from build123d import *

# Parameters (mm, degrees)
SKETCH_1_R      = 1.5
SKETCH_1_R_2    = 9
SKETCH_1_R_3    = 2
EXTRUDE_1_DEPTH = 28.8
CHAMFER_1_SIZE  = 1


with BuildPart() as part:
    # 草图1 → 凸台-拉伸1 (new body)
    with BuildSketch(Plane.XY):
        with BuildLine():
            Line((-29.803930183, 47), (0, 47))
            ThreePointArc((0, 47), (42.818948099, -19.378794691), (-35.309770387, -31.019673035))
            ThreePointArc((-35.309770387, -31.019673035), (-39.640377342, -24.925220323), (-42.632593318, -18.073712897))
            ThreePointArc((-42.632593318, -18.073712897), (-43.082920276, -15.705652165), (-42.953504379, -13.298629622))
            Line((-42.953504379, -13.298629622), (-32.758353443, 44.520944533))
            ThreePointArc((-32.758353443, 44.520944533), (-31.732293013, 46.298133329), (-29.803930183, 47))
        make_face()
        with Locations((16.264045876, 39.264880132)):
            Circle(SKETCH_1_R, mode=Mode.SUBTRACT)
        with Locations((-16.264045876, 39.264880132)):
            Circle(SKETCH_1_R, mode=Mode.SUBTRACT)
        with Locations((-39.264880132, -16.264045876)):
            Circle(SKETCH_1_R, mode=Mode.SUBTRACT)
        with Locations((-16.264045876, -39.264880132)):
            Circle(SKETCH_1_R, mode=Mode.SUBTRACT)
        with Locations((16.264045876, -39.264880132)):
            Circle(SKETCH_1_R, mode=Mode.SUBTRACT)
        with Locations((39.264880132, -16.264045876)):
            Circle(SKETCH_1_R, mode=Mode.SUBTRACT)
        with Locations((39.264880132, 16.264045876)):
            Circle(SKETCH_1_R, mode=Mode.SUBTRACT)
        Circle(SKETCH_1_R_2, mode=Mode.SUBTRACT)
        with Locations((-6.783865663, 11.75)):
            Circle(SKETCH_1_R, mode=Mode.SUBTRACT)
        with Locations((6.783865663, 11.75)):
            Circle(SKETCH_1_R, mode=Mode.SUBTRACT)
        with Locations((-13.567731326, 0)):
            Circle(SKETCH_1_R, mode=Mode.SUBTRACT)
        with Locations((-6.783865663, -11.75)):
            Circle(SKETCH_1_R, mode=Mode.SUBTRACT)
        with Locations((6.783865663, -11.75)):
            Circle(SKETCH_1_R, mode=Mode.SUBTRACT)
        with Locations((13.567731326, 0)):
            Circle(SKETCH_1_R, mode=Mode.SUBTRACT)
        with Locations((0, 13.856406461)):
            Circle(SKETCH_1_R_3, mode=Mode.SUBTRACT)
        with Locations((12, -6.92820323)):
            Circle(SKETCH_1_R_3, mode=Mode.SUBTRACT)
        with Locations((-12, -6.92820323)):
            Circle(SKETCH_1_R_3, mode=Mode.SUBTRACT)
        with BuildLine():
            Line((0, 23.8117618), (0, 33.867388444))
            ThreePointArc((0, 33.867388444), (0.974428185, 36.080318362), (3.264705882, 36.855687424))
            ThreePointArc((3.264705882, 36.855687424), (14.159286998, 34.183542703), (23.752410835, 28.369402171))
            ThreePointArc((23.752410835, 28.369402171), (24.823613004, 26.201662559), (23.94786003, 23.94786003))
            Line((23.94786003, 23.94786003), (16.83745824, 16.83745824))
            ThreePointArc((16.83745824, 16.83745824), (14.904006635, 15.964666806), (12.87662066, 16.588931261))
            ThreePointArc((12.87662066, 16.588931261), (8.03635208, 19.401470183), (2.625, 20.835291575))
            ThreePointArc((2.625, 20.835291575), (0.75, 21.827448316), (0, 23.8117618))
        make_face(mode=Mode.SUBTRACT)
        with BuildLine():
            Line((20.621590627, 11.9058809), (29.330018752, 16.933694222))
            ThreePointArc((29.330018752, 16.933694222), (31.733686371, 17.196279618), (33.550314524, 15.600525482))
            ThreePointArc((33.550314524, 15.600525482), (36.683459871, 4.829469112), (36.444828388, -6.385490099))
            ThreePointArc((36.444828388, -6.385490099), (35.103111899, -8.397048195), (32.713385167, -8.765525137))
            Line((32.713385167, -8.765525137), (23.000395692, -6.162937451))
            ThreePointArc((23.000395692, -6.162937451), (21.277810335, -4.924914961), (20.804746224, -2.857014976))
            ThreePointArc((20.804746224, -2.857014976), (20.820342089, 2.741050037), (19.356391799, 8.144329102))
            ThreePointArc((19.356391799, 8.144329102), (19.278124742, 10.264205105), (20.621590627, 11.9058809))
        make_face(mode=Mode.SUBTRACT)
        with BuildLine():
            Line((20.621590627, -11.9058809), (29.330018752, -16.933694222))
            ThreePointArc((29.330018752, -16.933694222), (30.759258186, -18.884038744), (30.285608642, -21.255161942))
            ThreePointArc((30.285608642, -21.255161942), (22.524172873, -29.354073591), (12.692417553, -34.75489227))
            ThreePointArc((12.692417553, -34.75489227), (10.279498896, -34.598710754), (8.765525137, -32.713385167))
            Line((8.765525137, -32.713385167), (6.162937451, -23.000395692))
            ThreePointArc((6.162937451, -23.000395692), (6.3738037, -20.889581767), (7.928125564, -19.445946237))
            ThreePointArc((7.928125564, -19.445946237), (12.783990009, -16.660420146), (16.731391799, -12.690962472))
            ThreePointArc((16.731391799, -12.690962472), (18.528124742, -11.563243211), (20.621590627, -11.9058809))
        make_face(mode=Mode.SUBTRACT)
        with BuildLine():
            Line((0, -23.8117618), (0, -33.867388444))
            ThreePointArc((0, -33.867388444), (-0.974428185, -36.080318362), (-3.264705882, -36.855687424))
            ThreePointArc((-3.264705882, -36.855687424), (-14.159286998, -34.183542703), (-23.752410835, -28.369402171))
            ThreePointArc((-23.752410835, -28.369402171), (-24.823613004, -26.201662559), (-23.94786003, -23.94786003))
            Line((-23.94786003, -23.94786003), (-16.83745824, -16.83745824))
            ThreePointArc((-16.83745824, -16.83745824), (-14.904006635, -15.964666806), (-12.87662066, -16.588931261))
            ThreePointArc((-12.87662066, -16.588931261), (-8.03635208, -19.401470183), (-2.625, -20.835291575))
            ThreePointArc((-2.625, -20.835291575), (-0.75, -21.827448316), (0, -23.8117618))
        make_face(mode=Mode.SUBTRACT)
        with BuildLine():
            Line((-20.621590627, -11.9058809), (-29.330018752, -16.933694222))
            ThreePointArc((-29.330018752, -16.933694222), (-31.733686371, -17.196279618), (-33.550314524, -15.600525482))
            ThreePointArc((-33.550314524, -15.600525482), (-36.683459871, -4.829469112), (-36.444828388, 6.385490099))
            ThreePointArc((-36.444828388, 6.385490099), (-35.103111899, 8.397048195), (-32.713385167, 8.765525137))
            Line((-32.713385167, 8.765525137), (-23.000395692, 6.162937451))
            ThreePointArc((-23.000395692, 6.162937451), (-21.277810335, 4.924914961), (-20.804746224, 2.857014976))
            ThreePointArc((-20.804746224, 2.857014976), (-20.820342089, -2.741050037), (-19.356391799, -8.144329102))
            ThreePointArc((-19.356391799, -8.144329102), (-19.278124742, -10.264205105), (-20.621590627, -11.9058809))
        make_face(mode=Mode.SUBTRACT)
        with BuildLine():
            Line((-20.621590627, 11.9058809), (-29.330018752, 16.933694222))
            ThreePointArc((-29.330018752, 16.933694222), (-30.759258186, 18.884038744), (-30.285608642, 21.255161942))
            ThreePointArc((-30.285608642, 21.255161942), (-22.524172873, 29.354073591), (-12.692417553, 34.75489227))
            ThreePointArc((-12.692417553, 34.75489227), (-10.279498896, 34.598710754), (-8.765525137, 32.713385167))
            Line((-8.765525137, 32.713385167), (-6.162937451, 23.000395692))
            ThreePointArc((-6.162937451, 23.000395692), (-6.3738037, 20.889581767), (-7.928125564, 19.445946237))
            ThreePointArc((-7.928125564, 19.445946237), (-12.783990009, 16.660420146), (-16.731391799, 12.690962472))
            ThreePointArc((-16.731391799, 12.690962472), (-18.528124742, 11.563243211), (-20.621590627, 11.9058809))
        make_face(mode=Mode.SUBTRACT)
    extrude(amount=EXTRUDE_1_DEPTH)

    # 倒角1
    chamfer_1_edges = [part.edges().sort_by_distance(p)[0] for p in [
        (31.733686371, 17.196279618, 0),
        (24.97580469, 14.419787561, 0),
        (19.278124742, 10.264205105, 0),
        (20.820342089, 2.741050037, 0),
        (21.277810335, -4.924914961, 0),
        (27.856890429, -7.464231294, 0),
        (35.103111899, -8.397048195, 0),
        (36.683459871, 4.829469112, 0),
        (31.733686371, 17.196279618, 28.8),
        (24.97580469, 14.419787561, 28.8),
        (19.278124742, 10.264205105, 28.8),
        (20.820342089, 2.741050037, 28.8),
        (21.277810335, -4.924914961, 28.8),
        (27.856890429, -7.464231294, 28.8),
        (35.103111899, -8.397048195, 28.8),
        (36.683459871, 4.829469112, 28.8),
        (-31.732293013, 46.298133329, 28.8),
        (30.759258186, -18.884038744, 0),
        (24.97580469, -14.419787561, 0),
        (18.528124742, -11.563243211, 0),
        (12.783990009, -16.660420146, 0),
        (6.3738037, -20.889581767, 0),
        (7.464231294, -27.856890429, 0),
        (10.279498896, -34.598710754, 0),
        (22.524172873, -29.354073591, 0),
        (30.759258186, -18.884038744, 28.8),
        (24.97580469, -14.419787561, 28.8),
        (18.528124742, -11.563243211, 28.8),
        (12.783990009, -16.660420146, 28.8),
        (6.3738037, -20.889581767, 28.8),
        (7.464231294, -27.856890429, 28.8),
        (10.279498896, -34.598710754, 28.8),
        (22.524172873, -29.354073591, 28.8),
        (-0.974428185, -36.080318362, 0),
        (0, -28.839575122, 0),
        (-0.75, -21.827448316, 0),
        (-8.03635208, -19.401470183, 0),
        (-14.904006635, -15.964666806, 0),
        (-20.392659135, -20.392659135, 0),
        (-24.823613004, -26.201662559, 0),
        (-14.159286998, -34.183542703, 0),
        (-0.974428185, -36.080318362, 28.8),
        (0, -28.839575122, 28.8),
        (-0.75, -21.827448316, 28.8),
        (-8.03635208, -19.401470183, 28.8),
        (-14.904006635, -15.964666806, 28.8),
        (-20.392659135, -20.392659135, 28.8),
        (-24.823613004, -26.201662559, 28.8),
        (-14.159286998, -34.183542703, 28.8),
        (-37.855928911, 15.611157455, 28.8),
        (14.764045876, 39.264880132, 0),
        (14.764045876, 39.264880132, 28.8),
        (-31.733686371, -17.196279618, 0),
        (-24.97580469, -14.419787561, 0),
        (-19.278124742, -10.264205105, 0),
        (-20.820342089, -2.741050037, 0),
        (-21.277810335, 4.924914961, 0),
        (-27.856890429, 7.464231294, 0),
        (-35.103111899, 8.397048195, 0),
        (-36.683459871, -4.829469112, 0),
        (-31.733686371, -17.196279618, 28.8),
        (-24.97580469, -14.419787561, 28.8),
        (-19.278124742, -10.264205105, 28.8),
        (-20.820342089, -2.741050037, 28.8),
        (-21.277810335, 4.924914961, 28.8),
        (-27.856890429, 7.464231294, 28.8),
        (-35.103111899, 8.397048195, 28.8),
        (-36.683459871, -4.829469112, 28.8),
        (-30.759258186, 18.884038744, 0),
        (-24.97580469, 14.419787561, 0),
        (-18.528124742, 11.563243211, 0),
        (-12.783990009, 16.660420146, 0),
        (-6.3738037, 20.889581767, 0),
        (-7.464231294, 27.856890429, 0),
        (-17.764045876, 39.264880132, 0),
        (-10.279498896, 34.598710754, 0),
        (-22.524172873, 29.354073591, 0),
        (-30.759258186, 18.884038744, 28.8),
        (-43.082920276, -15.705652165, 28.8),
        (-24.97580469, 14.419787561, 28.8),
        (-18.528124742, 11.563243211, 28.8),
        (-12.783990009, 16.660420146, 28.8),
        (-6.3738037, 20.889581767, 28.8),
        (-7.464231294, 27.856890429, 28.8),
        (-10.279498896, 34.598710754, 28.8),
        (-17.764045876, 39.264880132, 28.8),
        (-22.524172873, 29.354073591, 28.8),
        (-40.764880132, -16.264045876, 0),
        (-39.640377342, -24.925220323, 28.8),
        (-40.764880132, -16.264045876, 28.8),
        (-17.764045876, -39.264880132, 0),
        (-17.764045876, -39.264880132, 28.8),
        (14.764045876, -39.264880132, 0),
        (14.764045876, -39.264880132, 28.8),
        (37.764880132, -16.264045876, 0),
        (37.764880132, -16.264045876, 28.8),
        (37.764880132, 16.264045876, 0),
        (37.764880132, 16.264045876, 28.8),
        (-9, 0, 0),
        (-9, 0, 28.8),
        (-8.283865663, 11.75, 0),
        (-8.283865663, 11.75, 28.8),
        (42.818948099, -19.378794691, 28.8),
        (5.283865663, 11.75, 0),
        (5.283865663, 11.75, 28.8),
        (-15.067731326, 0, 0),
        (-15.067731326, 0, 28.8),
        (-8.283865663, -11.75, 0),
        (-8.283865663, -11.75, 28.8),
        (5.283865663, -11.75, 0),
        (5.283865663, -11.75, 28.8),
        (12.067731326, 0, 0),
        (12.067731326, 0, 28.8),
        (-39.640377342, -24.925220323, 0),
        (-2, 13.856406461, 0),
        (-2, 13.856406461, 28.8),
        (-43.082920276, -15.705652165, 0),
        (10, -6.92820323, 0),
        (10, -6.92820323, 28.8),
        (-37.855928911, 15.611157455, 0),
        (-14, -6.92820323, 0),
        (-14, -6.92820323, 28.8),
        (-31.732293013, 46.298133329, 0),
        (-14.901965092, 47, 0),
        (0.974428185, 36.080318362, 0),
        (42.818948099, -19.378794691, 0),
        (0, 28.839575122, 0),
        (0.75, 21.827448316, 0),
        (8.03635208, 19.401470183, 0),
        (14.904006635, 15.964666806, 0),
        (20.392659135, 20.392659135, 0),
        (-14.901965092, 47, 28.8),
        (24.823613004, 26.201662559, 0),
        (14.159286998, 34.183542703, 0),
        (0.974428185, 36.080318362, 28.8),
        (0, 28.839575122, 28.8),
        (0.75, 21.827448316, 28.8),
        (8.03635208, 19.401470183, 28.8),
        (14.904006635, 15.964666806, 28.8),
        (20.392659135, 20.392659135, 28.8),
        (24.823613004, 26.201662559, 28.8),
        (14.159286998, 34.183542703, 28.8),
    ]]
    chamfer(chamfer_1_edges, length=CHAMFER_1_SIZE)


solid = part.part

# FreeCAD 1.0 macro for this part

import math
import FreeCAD as App
import Part
import Sketcher
from FreeCAD import Vector
Q = App.Units.Quantity


def edges_at(feature, points):
    """Names of the edges that pass closest to the given points."""
    edges = feature.Shape.Edges
    near = lambda p: min(range(len(edges)), key=lambda i: edges[i].distToShape(Part.Vertex(*p))[0])
    return sorted({f"Edge{near(p) + 1}" for p in points})

doc = App.newDocument("Part")
body = doc.addObject("PartDesign::Body", "Body")

# Sketch on XY plane
sketch1 = doc.addObject("Sketcher::SketchObject", "Sketch")
body.addObject(sketch1)
sketch1.AttachmentSupport = (doc.XY_Plane, [""])
sketch1.MapMode = "FlatFace"
sketch1.addGeometry(Part.LineSegment(Vector(0, 47, 0), Vector(-29.80393, 47, 0)), False)
sketch1.addGeometry(Part.ArcOfCircle(Part.Circle(Vector(-29.80393, 44, 0), Vector(0, 0, 1), 3), math.radians(90), math.radians(170)), False)
sketch1.addGeometry(Part.LineSegment(Vector(-32.758353, 44.520945, 0), Vector(-42.953504, -13.29863, 0)), False)
sketch1.addGeometry(Part.ArcOfCircle(Part.Circle(Vector(-33.105427, -15.035111, 0), Vector(0, 0, 1), 10), math.radians(170), math.radians(197.689601)), False)
sketch1.addGeometry(Part.ArcOfCircle(Part.Circle(Vector(-7.999927, -7.027945, 0), Vector(0, 0, 1), 36.351487), math.radians(-162.310399), math.radians(-138.700658)), False)
sketch1.addGeometry(Part.ArcOfCircle(Part.Circle(Vector(0, 0, 0), Vector(0, 0, 1), 47), math.radians(-138.700658), math.radians(90)), False)
sketch1.addGeometry(Part.Circle(Vector(16.264046, -39.26488, 0), Vector(0, 0, 1), 1.5), False)
sketch1.addGeometry(Part.LineSegment(Vector(20.621591, -11.905881, 0), Vector(29.330019, -16.933694, 0)), False)
sketch1.addGeometry(Part.ArcOfCircle(Part.Circle(Vector(27.830019, -19.53177, 0), Vector(0, 0, 1), 3), math.radians(-35.062093), math.radians(60)), False)
sketch1.addGeometry(Part.ArcOfCircle(Part.Circle(Vector(0, 0, 0), Vector(0, 0, 1), 37), math.radians(-69.937907), math.radians(-35.062093)), False)
sketch1.addGeometry(Part.ArcOfCircle(Part.Circle(Vector(11.663303, -31.936928, 0), Vector(0, 0, 1), 3), math.radians(-165), math.radians(-69.937907)), False)
sketch1.addGeometry(Part.LineSegment(Vector(8.765525, -32.713385, 0), Vector(6.162937, -23.000396, 0)), False)
sketch1.addGeometry(Part.ArcOfCircle(Part.Circle(Vector(9.060715, -22.223939, 0), Vector(0, 0, 1), 3), math.radians(112.180756), math.radians(195)), False)
sketch1.addGeometry(Part.ArcOfCircle(Part.Circle(Vector(0, 0, 0), Vector(0, 0, 1), 21), math.radians(-67.819244), math.radians(-37.180756)), False)
sketch1.addGeometry(Part.ArcOfCircle(Part.Circle(Vector(19.121591, -14.503957, 0), Vector(0, 0, 1), 3), math.radians(60), math.radians(142.819244)), False)
sketch1.addGeometry(Part.Circle(Vector(39.26488, -16.264046, 0), Vector(0, 0, 1), 1.5), False)
sketch1.addGeometry(Part.Circle(Vector(6.783866, -11.75, 0), Vector(0, 0, 1), 1.5), False)
sketch1.addGeometry(Part.Circle(Vector(12, -6.928203, 0), Vector(0, 0, 1), 2), False)
sketch1.addGeometry(Part.Circle(Vector(-16.264046, -39.26488, 0), Vector(0, 0, 1), 1.5), False)
sketch1.addGeometry(Part.LineSegment(Vector(0, -23.811762, 0), Vector(0, -33.867388, 0)), False)
sketch1.addGeometry(Part.ArcOfCircle(Part.Circle(Vector(-3, -33.867388, 0), Vector(0, 0, 1), 3), math.radians(-95.062093), math.radians(0)), False)
sketch1.addGeometry(Part.ArcOfCircle(Part.Circle(Vector(0, 0, 0), Vector(0, 0, 1), 37), math.radians(-129.937907), math.radians(-95.062093)), False)
sketch1.addGeometry(Part.ArcOfCircle(Part.Circle(Vector(-21.82654, -26.06918, 0), Vector(0, 0, 1), 3), math.radians(135), math.radians(230.062093)), False)
sketch1.addGeometry(Part.LineSegment(Vector(-23.94786, -23.94786, 0), Vector(-16.837458, -16.837458, 0)), False)
sketch1.addGeometry(Part.ArcOfCircle(Part.Circle(Vector(-14.716138, -18.958779, 0), Vector(0, 0, 1), 3), math.radians(52.180756), math.radians(135)), False)
sketch1.addGeometry(Part.ArcOfCircle(Part.Circle(Vector(0, 0, 0), Vector(0, 0, 1), 21), math.radians(-127.819244), math.radians(-97.180756)), False)
sketch1.addGeometry(Part.ArcOfCircle(Part.Circle(Vector(-3, -23.811762, 0), Vector(0, 0, 1), 3), math.radians(0), math.radians(82.819244)), False)
sketch1.addGeometry(Part.Circle(Vector(-6.783866, -11.75, 0), Vector(0, 0, 1), 1.5), False)
sketch1.addGeometry(Part.Circle(Vector(-12, -6.928203, 0), Vector(0, 0, 1), 2), False)
sketch1.addGeometry(Part.Circle(Vector(-39.26488, -16.264046, 0), Vector(0, 0, 1), 1.5), False)
sketch1.addGeometry(Part.LineSegment(Vector(-20.621591, -11.905881, 0), Vector(-29.330019, -16.933694, 0)), False)
sketch1.addGeometry(Part.ArcOfCircle(Part.Circle(Vector(-30.830019, -14.335618, 0), Vector(0, 0, 1), 3), math.radians(-155.062093), math.radians(-60)), False)
sketch1.addGeometry(Part.ArcOfCircle(Part.Circle(Vector(0, 0, 0), Vector(0, 0, 1), 37), math.radians(170.062093), math.radians(204.937907)), False)
sketch1.addGeometry(Part.ArcOfCircle(Part.Circle(Vector(-33.489842, 5.867748, 0), Vector(0, 0, 1), 3), math.radians(75), math.radians(170.062093)), False)
sketch1.addGeometry(Part.LineSegment(Vector(-32.713385, 8.765525, 0), Vector(-23.000396, 6.162937, 0)), False)
sketch1.addGeometry(Part.ArcOfCircle(Part.Circle(Vector(-23.776853, 3.26516, 0), Vector(0, 0, 1), 3), math.radians(-7.819244), math.radians(75)), False)
sketch1.addGeometry(Part.ArcOfCircle(Part.Circle(Vector(0, 0, 0), Vector(0, 0, 1), 21), math.radians(172.180756), math.radians(202.819244)), False)
sketch1.addGeometry(Part.ArcOfCircle(Part.Circle(Vector(-22.121591, -9.307805, 0), Vector(0, 0, 1), 3), math.radians(-60), math.radians(22.819244)), False)
sketch1.addGeometry(Part.LineSegment(Vector(20.621591, 11.905881, 0), Vector(29.330019, 16.933694, 0)), False)
sketch1.addGeometry(Part.ArcOfCircle(Part.Circle(Vector(30.830019, 14.335618, 0), Vector(0, 0, 1), 3), math.radians(24.937907), math.radians(120)), False)
sketch1.addGeometry(Part.ArcOfCircle(Part.Circle(Vector(0, 0, 0), Vector(0, 0, 1), 37), math.radians(-9.937907), math.radians(24.937907)), False)
sketch1.addGeometry(Part.ArcOfCircle(Part.Circle(Vector(33.489842, -5.867748, 0), Vector(0, 0, 1), 3), math.radians(-105), math.radians(-9.937907)), False)
sketch1.addGeometry(Part.LineSegment(Vector(32.713385, -8.765525, 0), Vector(23.000396, -6.162937, 0)), False)
sketch1.addGeometry(Part.ArcOfCircle(Part.Circle(Vector(23.776853, -3.26516, 0), Vector(0, 0, 1), 3), math.radians(172.180756), math.radians(255)), False)
sketch1.addGeometry(Part.ArcOfCircle(Part.Circle(Vector(0, 0, 0), Vector(0, 0, 1), 21), math.radians(-7.819244), math.radians(22.819244)), False)
sketch1.addGeometry(Part.ArcOfCircle(Part.Circle(Vector(22.121591, 9.307805, 0), Vector(0, 0, 1), 3), math.radians(120), math.radians(202.819244)), False)
sketch1.addGeometry(Part.Circle(Vector(39.26488, 16.264046, 0), Vector(0, 0, 1), 1.5), False)
sketch1.addGeometry(Part.Circle(Vector(13.567731, 0, 0), Vector(0, 0, 1), 1.5), False)
sketch1.addGeometry(Part.Circle(Vector(6.783866, 11.75, 0), Vector(0, 0, 1), 1.5), False)
sketch1.addGeometry(Part.LineSegment(Vector(0, 23.811762, 0), Vector(0, 33.867388, 0)), False)
sketch1.addGeometry(Part.ArcOfCircle(Part.Circle(Vector(3, 33.867388, 0), Vector(0, 0, 1), 3), math.radians(84.937907), math.radians(180)), False)
sketch1.addGeometry(Part.ArcOfCircle(Part.Circle(Vector(0, 0, 0), Vector(0, 0, 1), 37), math.radians(50.062093), math.radians(84.937907)), False)
sketch1.addGeometry(Part.ArcOfCircle(Part.Circle(Vector(21.82654, 26.06918, 0), Vector(0, 0, 1), 3), math.radians(-45), math.radians(50.062093)), False)
sketch1.addGeometry(Part.LineSegment(Vector(23.94786, 23.94786, 0), Vector(16.837458, 16.837458, 0)), False)
sketch1.addGeometry(Part.ArcOfCircle(Part.Circle(Vector(14.716138, 18.958779, 0), Vector(0, 0, 1), 3), math.radians(-127.819244), math.radians(-45)), False)
sketch1.addGeometry(Part.ArcOfCircle(Part.Circle(Vector(0, 0, 0), Vector(0, 0, 1), 21), math.radians(52.180756), math.radians(82.819244)), False)
sketch1.addGeometry(Part.ArcOfCircle(Part.Circle(Vector(3, 23.811762, 0), Vector(0, 0, 1), 3), math.radians(180), math.radians(262.819244)), False)
sketch1.addGeometry(Part.Circle(Vector(16.264046, 39.26488, 0), Vector(0, 0, 1), 1.5), False)
sketch1.addGeometry(Part.Circle(Vector(0, 0, 0), Vector(0, 0, 1), 9), False)
sketch1.addGeometry(Part.Circle(Vector(-13.567731, 0, 0), Vector(0, 0, 1), 1.5), False)
sketch1.addGeometry(Part.Circle(Vector(0, 13.856406, 0), Vector(0, 0, 1), 2), False)
sketch1.addGeometry(Part.Circle(Vector(-6.783866, 11.75, 0), Vector(0, 0, 1), 1.5), False)
sketch1.addGeometry(Part.LineSegment(Vector(-20.621591, 11.905881, 0), Vector(-29.330019, 16.933694, 0)), False)
sketch1.addGeometry(Part.ArcOfCircle(Part.Circle(Vector(-27.830019, 19.53177, 0), Vector(0, 0, 1), 3), math.radians(144.937907), math.radians(240)), False)
sketch1.addGeometry(Part.ArcOfCircle(Part.Circle(Vector(0, 0, 0), Vector(0, 0, 1), 37), math.radians(110.062093), math.radians(144.937907)), False)
sketch1.addGeometry(Part.ArcOfCircle(Part.Circle(Vector(-11.663303, 31.936928, 0), Vector(0, 0, 1), 3), math.radians(15), math.radians(110.062093)), False)
sketch1.addGeometry(Part.LineSegment(Vector(-8.765525, 32.713385, 0), Vector(-6.162937, 23.000396, 0)), False)
sketch1.addGeometry(Part.ArcOfCircle(Part.Circle(Vector(-9.060715, 22.223939, 0), Vector(0, 0, 1), 3), math.radians(-67.819244), math.radians(15)), False)
sketch1.addGeometry(Part.ArcOfCircle(Part.Circle(Vector(0, 0, 0), Vector(0, 0, 1), 21), math.radians(112.180756), math.radians(142.819244)), False)
sketch1.addGeometry(Part.ArcOfCircle(Part.Circle(Vector(-19.121591, 14.503957, 0), Vector(0, 0, 1), 3), math.radians(-120), math.radians(-37.180756)), False)
sketch1.addGeometry(Part.Circle(Vector(-16.264046, 39.26488, 0), Vector(0, 0, 1), 1.5), False)
sketch1.addConstraint(Sketcher.Constraint("Tangent", 0, 2, 1, 1))
sketch1.addConstraint(Sketcher.Constraint("Tangent", 1, 2, 2, 1))
sketch1.addConstraint(Sketcher.Constraint("Tangent", 2, 2, 3, 1))
sketch1.addConstraint(Sketcher.Constraint("Tangent", 3, 2, 4, 1))
sketch1.addConstraint(Sketcher.Constraint("Tangent", 4, 2, 5, 1))
sketch1.addConstraint(Sketcher.Constraint("Tangent", 5, 2, 0, 1))
sketch1.addConstraint(Sketcher.Constraint("Tangent", 7, 2, 8, 2))
sketch1.addConstraint(Sketcher.Constraint("Tangent", 8, 1, 9, 2))
sketch1.addConstraint(Sketcher.Constraint("Tangent", 9, 1, 10, 2))
sketch1.addConstraint(Sketcher.Constraint("Tangent", 10, 1, 11, 1))
sketch1.addConstraint(Sketcher.Constraint("Tangent", 11, 2, 12, 2))
sketch1.addConstraint(Sketcher.Constraint("Tangent", 12, 1, 13, 1))
sketch1.addConstraint(Sketcher.Constraint("Tangent", 13, 2, 14, 2))
sketch1.addConstraint(Sketcher.Constraint("Tangent", 14, 1, 7, 1))
sketch1.addConstraint(Sketcher.Constraint("Tangent", 19, 2, 20, 2))
sketch1.addConstraint(Sketcher.Constraint("Tangent", 20, 1, 21, 2))
sketch1.addConstraint(Sketcher.Constraint("Tangent", 21, 1, 22, 2))
sketch1.addConstraint(Sketcher.Constraint("Tangent", 22, 1, 23, 1))
sketch1.addConstraint(Sketcher.Constraint("Tangent", 23, 2, 24, 2))
sketch1.addConstraint(Sketcher.Constraint("Tangent", 24, 1, 25, 1))
sketch1.addConstraint(Sketcher.Constraint("Tangent", 25, 2, 26, 2))
sketch1.addConstraint(Sketcher.Constraint("Tangent", 26, 1, 19, 1))
sketch1.addConstraint(Sketcher.Constraint("Tangent", 30, 2, 31, 2))
sketch1.addConstraint(Sketcher.Constraint("Tangent", 31, 1, 32, 2))
sketch1.addConstraint(Sketcher.Constraint("Tangent", 32, 1, 33, 2))
sketch1.addConstraint(Sketcher.Constraint("Tangent", 33, 1, 34, 1))
sketch1.addConstraint(Sketcher.Constraint("Tangent", 34, 2, 35, 2))
sketch1.addConstraint(Sketcher.Constraint("Tangent", 35, 1, 36, 1))
sketch1.addConstraint(Sketcher.Constraint("Tangent", 36, 2, 37, 2))
sketch1.addConstraint(Sketcher.Constraint("Tangent", 37, 1, 30, 1))
sketch1.addConstraint(Sketcher.Constraint("Tangent", 38, 2, 39, 2))
sketch1.addConstraint(Sketcher.Constraint("Tangent", 39, 1, 40, 2))
sketch1.addConstraint(Sketcher.Constraint("Tangent", 40, 1, 41, 2))
sketch1.addConstraint(Sketcher.Constraint("Tangent", 41, 1, 42, 1))
sketch1.addConstraint(Sketcher.Constraint("Tangent", 42, 2, 43, 2))
sketch1.addConstraint(Sketcher.Constraint("Tangent", 43, 1, 44, 1))
sketch1.addConstraint(Sketcher.Constraint("Tangent", 44, 2, 45, 2))
sketch1.addConstraint(Sketcher.Constraint("Tangent", 45, 1, 38, 1))
sketch1.addConstraint(Sketcher.Constraint("Tangent", 49, 2, 50, 2))
sketch1.addConstraint(Sketcher.Constraint("Tangent", 50, 1, 51, 2))
sketch1.addConstraint(Sketcher.Constraint("Tangent", 51, 1, 52, 2))
sketch1.addConstraint(Sketcher.Constraint("Tangent", 52, 1, 53, 1))
sketch1.addConstraint(Sketcher.Constraint("Tangent", 53, 2, 54, 2))
sketch1.addConstraint(Sketcher.Constraint("Tangent", 54, 1, 55, 1))
sketch1.addConstraint(Sketcher.Constraint("Tangent", 55, 2, 56, 2))
sketch1.addConstraint(Sketcher.Constraint("Tangent", 56, 1, 49, 1))
sketch1.addConstraint(Sketcher.Constraint("Tangent", 62, 2, 63, 2))
sketch1.addConstraint(Sketcher.Constraint("Tangent", 63, 1, 64, 2))
sketch1.addConstraint(Sketcher.Constraint("Tangent", 64, 1, 65, 2))
sketch1.addConstraint(Sketcher.Constraint("Tangent", 65, 1, 66, 1))
sketch1.addConstraint(Sketcher.Constraint("Tangent", 66, 2, 67, 2))
sketch1.addConstraint(Sketcher.Constraint("Tangent", 67, 1, 68, 1))
sketch1.addConstraint(Sketcher.Constraint("Tangent", 68, 2, 69, 2))
sketch1.addConstraint(Sketcher.Constraint("Tangent", 69, 1, 62, 1))
sketch1.addConstraint(Sketcher.Constraint("Horizontal", 0))
sketch1.addConstraint(Sketcher.Constraint("Vertical", 19))
sketch1.addConstraint(Sketcher.Constraint("Vertical", 49))
sketch1.addConstraint(Sketcher.Constraint("Coincident", 5, 3, -1, 1))
sketch1.addConstraint(Sketcher.Constraint("Coincident", 9, 3, -1, 1))
sketch1.addConstraint(Sketcher.Constraint("Coincident", 13, 3, -1, 1))
sketch1.addConstraint(Sketcher.Constraint("Coincident", 21, 3, -1, 1))
sketch1.addConstraint(Sketcher.Constraint("Coincident", 25, 3, -1, 1))
sketch1.addConstraint(Sketcher.Constraint("Coincident", 32, 3, -1, 1))
sketch1.addConstraint(Sketcher.Constraint("Coincident", 36, 3, -1, 1))
sketch1.addConstraint(Sketcher.Constraint("Coincident", 40, 3, -1, 1))
sketch1.addConstraint(Sketcher.Constraint("Coincident", 44, 3, -1, 1))
sketch1.addConstraint(Sketcher.Constraint("Coincident", 51, 3, -1, 1))
sketch1.addConstraint(Sketcher.Constraint("Coincident", 55, 3, -1, 1))
sketch1.addConstraint(Sketcher.Constraint("Coincident", 58, 3, -1, 1))
sketch1.addConstraint(Sketcher.Constraint("Coincident", 64, 3, -1, 1))
sketch1.addConstraint(Sketcher.Constraint("Coincident", 68, 3, -1, 1))
sketch1.addConstraint(Sketcher.Constraint("Equal", 1, 8))
sketch1.addConstraint(Sketcher.Constraint("Equal", 8, 10))
sketch1.addConstraint(Sketcher.Constraint("Equal", 10, 12))
sketch1.addConstraint(Sketcher.Constraint("Equal", 12, 14))
sketch1.addConstraint(Sketcher.Constraint("Equal", 6, 15))
sketch1.addConstraint(Sketcher.Constraint("Equal", 15, 16))
sketch1.addConstraint(Sketcher.Constraint("Equal", 16, 18))
sketch1.addConstraint(Sketcher.Constraint("Equal", 14, 20))
sketch1.addConstraint(Sketcher.Constraint("Equal", 9, 21))
sketch1.addConstraint(Sketcher.Constraint("Equal", 20, 22))
sketch1.addConstraint(Sketcher.Constraint("Equal", 22, 24))
sketch1.addConstraint(Sketcher.Constraint("Equal", 13, 25))
sketch1.addConstraint(Sketcher.Constraint("Equal", 24, 26))
sketch1.addConstraint(Sketcher.Constraint("Equal", 18, 27))
sketch1.addConstraint(Sketcher.Constraint("Equal", 17, 28))
sketch1.addConstraint(Sketcher.Constraint("Equal", 27, 29))
sketch1.addConstraint(Sketcher.Constraint("Equal", 26, 31))
sketch1.addConstraint(Sketcher.Constraint("Equal", 21, 32))
sketch1.addConstraint(Sketcher.Constraint("Equal", 31, 33))
sketch1.addConstraint(Sketcher.Constraint("Equal", 33, 35))
sketch1.addConstraint(Sketcher.Constraint("Equal", 25, 36))
sketch1.addConstraint(Sketcher.Constraint("Equal", 35, 37))
sketch1.addConstraint(Sketcher.Constraint("Equal", 37, 39))
sketch1.addConstraint(Sketcher.Constraint("Equal", 32, 40))
sketch1.addConstraint(Sketcher.Constraint("Equal", 39, 41))
sketch1.addConstraint(Sketcher.Constraint("Equal", 41, 43))
sketch1.addConstraint(Sketcher.Constraint("Equal", 36, 44))
sketch1.addConstraint(Sketcher.Constraint("Equal", 43, 45))
sketch1.addConstraint(Sketcher.Constraint("Equal", 29, 46))
sketch1.addConstraint(Sketcher.Constraint("Equal", 46, 47))
sketch1.addConstraint(Sketcher.Constraint("Equal", 47, 48))
sketch1.addConstraint(Sketcher.Constraint("Equal", 45, 50))
sketch1.addConstraint(Sketcher.Constraint("Equal", 40, 51))
sketch1.addConstraint(Sketcher.Constraint("Equal", 50, 52))
sketch1.addConstraint(Sketcher.Constraint("Equal", 52, 54))
sketch1.addConstraint(Sketcher.Constraint("Equal", 44, 55))
sketch1.addConstraint(Sketcher.Constraint("Equal", 54, 56))
sketch1.addConstraint(Sketcher.Constraint("Equal", 48, 57))
sketch1.addConstraint(Sketcher.Constraint("Equal", 57, 59))
sketch1.addConstraint(Sketcher.Constraint("Equal", 28, 60))
sketch1.addConstraint(Sketcher.Constraint("Equal", 59, 61))
sketch1.addConstraint(Sketcher.Constraint("Equal", 56, 63))
sketch1.addConstraint(Sketcher.Constraint("Equal", 51, 64))
sketch1.addConstraint(Sketcher.Constraint("Equal", 63, 65))
sketch1.addConstraint(Sketcher.Constraint("Equal", 65, 67))
sketch1.addConstraint(Sketcher.Constraint("Equal", 55, 68))
sketch1.addConstraint(Sketcher.Constraint("Equal", 67, 69))
sketch1.addConstraint(Sketcher.Constraint("Equal", 61, 70))
sketch1.addConstraint(Sketcher.Constraint("Symmetric", 29, 3, 46, 3, -1, 1))
sketch1.addConstraint(Sketcher.Constraint("Symmetric", 27, 3, 48, 3, -1, 1))
sketch1.addConstraint(Sketcher.Constraint("Symmetric", 18, 3, 57, 3, -1, 1))
sketch1.addConstraint(Sketcher.Constraint("Symmetric", 47, 3, 59, 3, -1, 1))
sketch1.addConstraint(Sketcher.Constraint("Symmetric", 16, 3, 61, 3, -1, 1))
sketch1.addConstraint(Sketcher.Constraint("Symmetric", 6, 3, 70, 3, -1, 1))
sketch1.addConstraint(Sketcher.Constraint("Symmetric", 30, 2, 38, 2, -1, 1))
sketch1.addConstraint(Sketcher.Constraint("Symmetric", 33, 1, 41, 1, -1, 1))
sketch1.addConstraint(Sketcher.Constraint("Symmetric", 22, 1, 52, 1, -1, 1))
sketch1.addConstraint(Sketcher.Constraint("Symmetric", 7, 2, 62, 2, -1, 1))
sketch1.addConstraint(Sketcher.Constraint("Symmetric", 10, 1, 65, 1, -1, 1))
sketch1.addConstraint(Sketcher.Constraint("Symmetric", 6, 3, 18, 3, -2))
sketch1.addConstraint(Sketcher.Constraint("Symmetric", 16, 3, 27, 3, -2))
sketch1.addConstraint(Sketcher.Constraint("Symmetric", 17, 3, 28, 3, -2))
sketch1.addConstraint(Sketcher.Constraint("Symmetric", 15, 3, 29, 3, -2))
sketch1.addConstraint(Sketcher.Constraint("Symmetric", 7, 2, 30, 2, -2))
sketch1.addConstraint(Sketcher.Constraint("Symmetric", 19, 2, 49, 2, -1))
sketch1.addConstraint(Sketcher.Constraint("PointOnObject", 47, 3, -1))
sketch1.addConstraint(Sketcher.Constraint("PointOnObject", 60, 3, -2))
sketch1.addConstraint(Sketcher.Constraint("Horizontal", 14, 1, 37, 1))
sketch1.addConstraint(Sketcher.Constraint("Equal", 7, 11))
sketch1.addConstraint(Sketcher.Constraint("Equal", 11, 23))
sketch1.addConstraint(Sketcher.Constraint("Equal", 30, 34))
sketch1.addConstraint(Sketcher.Constraint("Diameter", 6, 3.0))
sketch1.addConstraint(Sketcher.Constraint("Diameter", 17, 4.0))
sketch1.addConstraint(Sketcher.Constraint("Diameter", 58, 18.0))
sketch1.addConstraint(Sketcher.Constraint("Radius", 1, 3.0))
sketch1.addConstraint(Sketcher.Constraint("Radius", 3, 10.0))
sketch1.addConstraint(Sketcher.Constraint("Radius", 5, 47.0))
sketch1.addConstraint(Sketcher.Constraint("Radius", 9, 37.0))
sketch1.addConstraint(Sketcher.Constraint("Radius", 13, 21.0))
sketch1.addConstraint(Sketcher.Constraint("Angle", 2, Q("-100 deg")))
sketch1.addConstraint(Sketcher.Constraint("Angle", 7, Q("-30 deg")))
sketch1.addConstraint(Sketcher.Constraint("Angle", 11, Q("105 deg")))
sketch1.addConstraint(Sketcher.Constraint("Angle", 23, Q("45 deg")))
sketch1.addConstraint(Sketcher.Constraint("Angle", 34, Q("-15 deg")))
sketch1.addConstraint(Sketcher.Constraint("DistanceX", -1, 1, 17, 3, 12.0))
sketch1.addConstraint(Sketcher.Constraint("DistanceY", 16, 3, -1, 1, 11.75))
sketch1.addConstraint(Sketcher.Constraint("Radius", 4, 36.351487))
sketch1.addConstraint(Sketcher.Constraint("DistanceX", 0, 2, 0, 1, 29.80393))
sketch1.addConstraint(Sketcher.Constraint("DistanceY", 3, 3, -1, 1, 15.035111))
sketch1.addConstraint(Sketcher.Constraint("DistanceY", 6, 3, -1, 1, 39.26488))
sketch1.addConstraint(Sketcher.Constraint("DistanceX", -1, 1, 15, 3, 39.26488))
sketch1.addConstraint(Sketcher.Constraint("DistanceX", -1, 1, 47, 3, 13.567731))
sketch1.addConstraint(Sketcher.Constraint("DistanceX", -1, 1, 6, 3, 16.264046))
sketch1.addConstraint(Sketcher.Constraint("DistanceY", 15, 3, -1, 1, 16.264046))
sketch1.addConstraint(Sketcher.Constraint("DistanceX", -1, 1, 16, 3, 6.783866))
sketch1.addConstraint(Sketcher.Constraint("DistanceY", 17, 3, -1, 1, 6.928203))
sketch1.addConstraint(Sketcher.Constraint("DistanceY", -1, 1, 60, 3, 13.856406))
pad1 = doc.addObject("PartDesign::Pad", "Pad")
body.addObject(pad1)
pad1.Profile = sketch1
pad1.Length = 28.8
doc.recompute()

chamfer = doc.addObject("PartDesign::Chamfer", "Chamfer")
body.addObject(chamfer)
chamfer.Base = (pad1, edges_at(pad1, [
    (31.734, 17.196, 0),
    (24.976, 14.42, 0),
    (19.278, 10.264, 0),
    (20.82, 2.741, 0),
    (21.278, -4.925, 0),
    (27.857, -7.464, 0),
    (35.103, -8.397, 0),
    (36.683, 4.829, 0),
    (31.734, 17.196, 28.8),
    (24.976, 14.42, 28.8),
    (19.278, 10.264, 28.8),
    (20.82, 2.741, 28.8),
    (21.278, -4.925, 28.8),
    (27.857, -7.464, 28.8),
    (35.103, -8.397, 28.8),
    (36.683, 4.829, 28.8),
    (-31.732, 46.298, 28.8),
    (30.759, -18.884, 0),
    (24.976, -14.42, 0),
    (18.528, -11.563, 0),
    (12.784, -16.66, 0),
    (6.374, -20.89, 0),
    (7.464, -27.857, 0),
    (10.279, -34.599, 0),
    (22.524, -29.354, 0),
    (30.759, -18.884, 28.8),
    (24.976, -14.42, 28.8),
    (18.528, -11.563, 28.8),
    (12.784, -16.66, 28.8),
    (6.374, -20.89, 28.8),
    (7.464, -27.857, 28.8),
    (10.279, -34.599, 28.8),
    (22.524, -29.354, 28.8),
    (-0.974, -36.08, 0),
    (0, -28.84, 0),
    (-0.75, -21.827, 0),
    (-8.036, -19.401, 0),
    (-14.904, -15.965, 0),
    (-20.393, -20.393, 0),
    (-24.824, -26.202, 0),
    (-14.159, -34.184, 0),
    (-0.974, -36.08, 28.8),
    (0, -28.84, 28.8),
    (-0.75, -21.827, 28.8),
    (-8.036, -19.401, 28.8),
    (-14.904, -15.965, 28.8),
    (-20.393, -20.393, 28.8),
    (-24.824, -26.202, 28.8),
    (-14.159, -34.184, 28.8),
    (-37.856, 15.611, 28.8),
    (14.764, 39.265, 0),
    (14.764, 39.265, 28.8),
    (-31.734, -17.196, 0),
    (-24.976, -14.42, 0),
    (-19.278, -10.264, 0),
    (-20.82, -2.741, 0),
    (-21.278, 4.925, 0),
    (-27.857, 7.464, 0),
    (-35.103, 8.397, 0),
    (-36.683, -4.829, 0),
    (-31.734, -17.196, 28.8),
    (-24.976, -14.42, 28.8),
    (-19.278, -10.264, 28.8),
    (-20.82, -2.741, 28.8),
    (-21.278, 4.925, 28.8),
    (-27.857, 7.464, 28.8),
    (-35.103, 8.397, 28.8),
    (-36.683, -4.829, 28.8),
    (-30.759, 18.884, 0),
    (-24.976, 14.42, 0),
    (-18.528, 11.563, 0),
    (-12.784, 16.66, 0),
    (-6.374, 20.89, 0),
    (-7.464, 27.857, 0),
    (-17.764, 39.265, 0),
    (-10.279, 34.599, 0),
    (-22.524, 29.354, 0),
    (-30.759, 18.884, 28.8),
    (-43.083, -15.706, 28.8),
    (-24.976, 14.42, 28.8),
    (-18.528, 11.563, 28.8),
    (-12.784, 16.66, 28.8),
    (-6.374, 20.89, 28.8),
    (-7.464, 27.857, 28.8),
    (-10.279, 34.599, 28.8),
    (-17.764, 39.265, 28.8),
    (-22.524, 29.354, 28.8),
    (-40.765, -16.264, 0),
    (-39.64, -24.925, 28.8),
    (-40.765, -16.264, 28.8),
    (-17.764, -39.265, 0),
    (-17.764, -39.265, 28.8),
    (14.764, -39.265, 0),
    (14.764, -39.265, 28.8),
    (37.765, -16.264, 0),
    (37.765, -16.264, 28.8),
    (37.765, 16.264, 0),
    (37.765, 16.264, 28.8),
    (-9, 0, 0),
    (-9, 0, 28.8),
    (-8.284, 11.75, 0),
    (-8.284, 11.75, 28.8),
    (42.819, -19.379, 28.8),
    (5.284, 11.75, 0),
    (5.284, 11.75, 28.8),
    (-15.068, 0, 0),
    (-15.068, 0, 28.8),
    (-8.284, -11.75, 0),
    (-8.284, -11.75, 28.8),
    (5.284, -11.75, 0),
    (5.284, -11.75, 28.8),
    (12.068, 0, 0),
    (12.068, 0, 28.8),
    (-39.64, -24.925, 0),
    (-2, 13.856, 0),
    (-2, 13.856, 28.8),
    (-43.083, -15.706, 0),
    (10, -6.928, 0),
    (10, -6.928, 28.8),
    (-37.856, 15.611, 0),
    (-14, -6.928, 0),
    (-14, -6.928, 28.8),
    (-31.732, 46.298, 0),
    (-14.902, 47, 0),
    (0.974, 36.08, 0),
    (42.819, -19.379, 0),
    (0, 28.84, 0),
    (0.75, 21.827, 0),
    (8.036, 19.401, 0),
    (14.904, 15.965, 0),
    (20.393, 20.393, 0),
    (-14.902, 47, 28.8),
    (24.824, 26.202, 0),
    (14.159, 34.184, 0),
    (0.974, 36.08, 28.8),
    (0, 28.84, 28.8),
    (0.75, 21.827, 28.8),
    (8.036, 19.401, 28.8),
    (14.904, 15.965, 28.8),
    (20.393, 20.393, 28.8),
    (24.824, 26.202, 28.8),
    (14.159, 34.184, 28.8),
]))
chamfer.Size = 1

doc.recompute()
